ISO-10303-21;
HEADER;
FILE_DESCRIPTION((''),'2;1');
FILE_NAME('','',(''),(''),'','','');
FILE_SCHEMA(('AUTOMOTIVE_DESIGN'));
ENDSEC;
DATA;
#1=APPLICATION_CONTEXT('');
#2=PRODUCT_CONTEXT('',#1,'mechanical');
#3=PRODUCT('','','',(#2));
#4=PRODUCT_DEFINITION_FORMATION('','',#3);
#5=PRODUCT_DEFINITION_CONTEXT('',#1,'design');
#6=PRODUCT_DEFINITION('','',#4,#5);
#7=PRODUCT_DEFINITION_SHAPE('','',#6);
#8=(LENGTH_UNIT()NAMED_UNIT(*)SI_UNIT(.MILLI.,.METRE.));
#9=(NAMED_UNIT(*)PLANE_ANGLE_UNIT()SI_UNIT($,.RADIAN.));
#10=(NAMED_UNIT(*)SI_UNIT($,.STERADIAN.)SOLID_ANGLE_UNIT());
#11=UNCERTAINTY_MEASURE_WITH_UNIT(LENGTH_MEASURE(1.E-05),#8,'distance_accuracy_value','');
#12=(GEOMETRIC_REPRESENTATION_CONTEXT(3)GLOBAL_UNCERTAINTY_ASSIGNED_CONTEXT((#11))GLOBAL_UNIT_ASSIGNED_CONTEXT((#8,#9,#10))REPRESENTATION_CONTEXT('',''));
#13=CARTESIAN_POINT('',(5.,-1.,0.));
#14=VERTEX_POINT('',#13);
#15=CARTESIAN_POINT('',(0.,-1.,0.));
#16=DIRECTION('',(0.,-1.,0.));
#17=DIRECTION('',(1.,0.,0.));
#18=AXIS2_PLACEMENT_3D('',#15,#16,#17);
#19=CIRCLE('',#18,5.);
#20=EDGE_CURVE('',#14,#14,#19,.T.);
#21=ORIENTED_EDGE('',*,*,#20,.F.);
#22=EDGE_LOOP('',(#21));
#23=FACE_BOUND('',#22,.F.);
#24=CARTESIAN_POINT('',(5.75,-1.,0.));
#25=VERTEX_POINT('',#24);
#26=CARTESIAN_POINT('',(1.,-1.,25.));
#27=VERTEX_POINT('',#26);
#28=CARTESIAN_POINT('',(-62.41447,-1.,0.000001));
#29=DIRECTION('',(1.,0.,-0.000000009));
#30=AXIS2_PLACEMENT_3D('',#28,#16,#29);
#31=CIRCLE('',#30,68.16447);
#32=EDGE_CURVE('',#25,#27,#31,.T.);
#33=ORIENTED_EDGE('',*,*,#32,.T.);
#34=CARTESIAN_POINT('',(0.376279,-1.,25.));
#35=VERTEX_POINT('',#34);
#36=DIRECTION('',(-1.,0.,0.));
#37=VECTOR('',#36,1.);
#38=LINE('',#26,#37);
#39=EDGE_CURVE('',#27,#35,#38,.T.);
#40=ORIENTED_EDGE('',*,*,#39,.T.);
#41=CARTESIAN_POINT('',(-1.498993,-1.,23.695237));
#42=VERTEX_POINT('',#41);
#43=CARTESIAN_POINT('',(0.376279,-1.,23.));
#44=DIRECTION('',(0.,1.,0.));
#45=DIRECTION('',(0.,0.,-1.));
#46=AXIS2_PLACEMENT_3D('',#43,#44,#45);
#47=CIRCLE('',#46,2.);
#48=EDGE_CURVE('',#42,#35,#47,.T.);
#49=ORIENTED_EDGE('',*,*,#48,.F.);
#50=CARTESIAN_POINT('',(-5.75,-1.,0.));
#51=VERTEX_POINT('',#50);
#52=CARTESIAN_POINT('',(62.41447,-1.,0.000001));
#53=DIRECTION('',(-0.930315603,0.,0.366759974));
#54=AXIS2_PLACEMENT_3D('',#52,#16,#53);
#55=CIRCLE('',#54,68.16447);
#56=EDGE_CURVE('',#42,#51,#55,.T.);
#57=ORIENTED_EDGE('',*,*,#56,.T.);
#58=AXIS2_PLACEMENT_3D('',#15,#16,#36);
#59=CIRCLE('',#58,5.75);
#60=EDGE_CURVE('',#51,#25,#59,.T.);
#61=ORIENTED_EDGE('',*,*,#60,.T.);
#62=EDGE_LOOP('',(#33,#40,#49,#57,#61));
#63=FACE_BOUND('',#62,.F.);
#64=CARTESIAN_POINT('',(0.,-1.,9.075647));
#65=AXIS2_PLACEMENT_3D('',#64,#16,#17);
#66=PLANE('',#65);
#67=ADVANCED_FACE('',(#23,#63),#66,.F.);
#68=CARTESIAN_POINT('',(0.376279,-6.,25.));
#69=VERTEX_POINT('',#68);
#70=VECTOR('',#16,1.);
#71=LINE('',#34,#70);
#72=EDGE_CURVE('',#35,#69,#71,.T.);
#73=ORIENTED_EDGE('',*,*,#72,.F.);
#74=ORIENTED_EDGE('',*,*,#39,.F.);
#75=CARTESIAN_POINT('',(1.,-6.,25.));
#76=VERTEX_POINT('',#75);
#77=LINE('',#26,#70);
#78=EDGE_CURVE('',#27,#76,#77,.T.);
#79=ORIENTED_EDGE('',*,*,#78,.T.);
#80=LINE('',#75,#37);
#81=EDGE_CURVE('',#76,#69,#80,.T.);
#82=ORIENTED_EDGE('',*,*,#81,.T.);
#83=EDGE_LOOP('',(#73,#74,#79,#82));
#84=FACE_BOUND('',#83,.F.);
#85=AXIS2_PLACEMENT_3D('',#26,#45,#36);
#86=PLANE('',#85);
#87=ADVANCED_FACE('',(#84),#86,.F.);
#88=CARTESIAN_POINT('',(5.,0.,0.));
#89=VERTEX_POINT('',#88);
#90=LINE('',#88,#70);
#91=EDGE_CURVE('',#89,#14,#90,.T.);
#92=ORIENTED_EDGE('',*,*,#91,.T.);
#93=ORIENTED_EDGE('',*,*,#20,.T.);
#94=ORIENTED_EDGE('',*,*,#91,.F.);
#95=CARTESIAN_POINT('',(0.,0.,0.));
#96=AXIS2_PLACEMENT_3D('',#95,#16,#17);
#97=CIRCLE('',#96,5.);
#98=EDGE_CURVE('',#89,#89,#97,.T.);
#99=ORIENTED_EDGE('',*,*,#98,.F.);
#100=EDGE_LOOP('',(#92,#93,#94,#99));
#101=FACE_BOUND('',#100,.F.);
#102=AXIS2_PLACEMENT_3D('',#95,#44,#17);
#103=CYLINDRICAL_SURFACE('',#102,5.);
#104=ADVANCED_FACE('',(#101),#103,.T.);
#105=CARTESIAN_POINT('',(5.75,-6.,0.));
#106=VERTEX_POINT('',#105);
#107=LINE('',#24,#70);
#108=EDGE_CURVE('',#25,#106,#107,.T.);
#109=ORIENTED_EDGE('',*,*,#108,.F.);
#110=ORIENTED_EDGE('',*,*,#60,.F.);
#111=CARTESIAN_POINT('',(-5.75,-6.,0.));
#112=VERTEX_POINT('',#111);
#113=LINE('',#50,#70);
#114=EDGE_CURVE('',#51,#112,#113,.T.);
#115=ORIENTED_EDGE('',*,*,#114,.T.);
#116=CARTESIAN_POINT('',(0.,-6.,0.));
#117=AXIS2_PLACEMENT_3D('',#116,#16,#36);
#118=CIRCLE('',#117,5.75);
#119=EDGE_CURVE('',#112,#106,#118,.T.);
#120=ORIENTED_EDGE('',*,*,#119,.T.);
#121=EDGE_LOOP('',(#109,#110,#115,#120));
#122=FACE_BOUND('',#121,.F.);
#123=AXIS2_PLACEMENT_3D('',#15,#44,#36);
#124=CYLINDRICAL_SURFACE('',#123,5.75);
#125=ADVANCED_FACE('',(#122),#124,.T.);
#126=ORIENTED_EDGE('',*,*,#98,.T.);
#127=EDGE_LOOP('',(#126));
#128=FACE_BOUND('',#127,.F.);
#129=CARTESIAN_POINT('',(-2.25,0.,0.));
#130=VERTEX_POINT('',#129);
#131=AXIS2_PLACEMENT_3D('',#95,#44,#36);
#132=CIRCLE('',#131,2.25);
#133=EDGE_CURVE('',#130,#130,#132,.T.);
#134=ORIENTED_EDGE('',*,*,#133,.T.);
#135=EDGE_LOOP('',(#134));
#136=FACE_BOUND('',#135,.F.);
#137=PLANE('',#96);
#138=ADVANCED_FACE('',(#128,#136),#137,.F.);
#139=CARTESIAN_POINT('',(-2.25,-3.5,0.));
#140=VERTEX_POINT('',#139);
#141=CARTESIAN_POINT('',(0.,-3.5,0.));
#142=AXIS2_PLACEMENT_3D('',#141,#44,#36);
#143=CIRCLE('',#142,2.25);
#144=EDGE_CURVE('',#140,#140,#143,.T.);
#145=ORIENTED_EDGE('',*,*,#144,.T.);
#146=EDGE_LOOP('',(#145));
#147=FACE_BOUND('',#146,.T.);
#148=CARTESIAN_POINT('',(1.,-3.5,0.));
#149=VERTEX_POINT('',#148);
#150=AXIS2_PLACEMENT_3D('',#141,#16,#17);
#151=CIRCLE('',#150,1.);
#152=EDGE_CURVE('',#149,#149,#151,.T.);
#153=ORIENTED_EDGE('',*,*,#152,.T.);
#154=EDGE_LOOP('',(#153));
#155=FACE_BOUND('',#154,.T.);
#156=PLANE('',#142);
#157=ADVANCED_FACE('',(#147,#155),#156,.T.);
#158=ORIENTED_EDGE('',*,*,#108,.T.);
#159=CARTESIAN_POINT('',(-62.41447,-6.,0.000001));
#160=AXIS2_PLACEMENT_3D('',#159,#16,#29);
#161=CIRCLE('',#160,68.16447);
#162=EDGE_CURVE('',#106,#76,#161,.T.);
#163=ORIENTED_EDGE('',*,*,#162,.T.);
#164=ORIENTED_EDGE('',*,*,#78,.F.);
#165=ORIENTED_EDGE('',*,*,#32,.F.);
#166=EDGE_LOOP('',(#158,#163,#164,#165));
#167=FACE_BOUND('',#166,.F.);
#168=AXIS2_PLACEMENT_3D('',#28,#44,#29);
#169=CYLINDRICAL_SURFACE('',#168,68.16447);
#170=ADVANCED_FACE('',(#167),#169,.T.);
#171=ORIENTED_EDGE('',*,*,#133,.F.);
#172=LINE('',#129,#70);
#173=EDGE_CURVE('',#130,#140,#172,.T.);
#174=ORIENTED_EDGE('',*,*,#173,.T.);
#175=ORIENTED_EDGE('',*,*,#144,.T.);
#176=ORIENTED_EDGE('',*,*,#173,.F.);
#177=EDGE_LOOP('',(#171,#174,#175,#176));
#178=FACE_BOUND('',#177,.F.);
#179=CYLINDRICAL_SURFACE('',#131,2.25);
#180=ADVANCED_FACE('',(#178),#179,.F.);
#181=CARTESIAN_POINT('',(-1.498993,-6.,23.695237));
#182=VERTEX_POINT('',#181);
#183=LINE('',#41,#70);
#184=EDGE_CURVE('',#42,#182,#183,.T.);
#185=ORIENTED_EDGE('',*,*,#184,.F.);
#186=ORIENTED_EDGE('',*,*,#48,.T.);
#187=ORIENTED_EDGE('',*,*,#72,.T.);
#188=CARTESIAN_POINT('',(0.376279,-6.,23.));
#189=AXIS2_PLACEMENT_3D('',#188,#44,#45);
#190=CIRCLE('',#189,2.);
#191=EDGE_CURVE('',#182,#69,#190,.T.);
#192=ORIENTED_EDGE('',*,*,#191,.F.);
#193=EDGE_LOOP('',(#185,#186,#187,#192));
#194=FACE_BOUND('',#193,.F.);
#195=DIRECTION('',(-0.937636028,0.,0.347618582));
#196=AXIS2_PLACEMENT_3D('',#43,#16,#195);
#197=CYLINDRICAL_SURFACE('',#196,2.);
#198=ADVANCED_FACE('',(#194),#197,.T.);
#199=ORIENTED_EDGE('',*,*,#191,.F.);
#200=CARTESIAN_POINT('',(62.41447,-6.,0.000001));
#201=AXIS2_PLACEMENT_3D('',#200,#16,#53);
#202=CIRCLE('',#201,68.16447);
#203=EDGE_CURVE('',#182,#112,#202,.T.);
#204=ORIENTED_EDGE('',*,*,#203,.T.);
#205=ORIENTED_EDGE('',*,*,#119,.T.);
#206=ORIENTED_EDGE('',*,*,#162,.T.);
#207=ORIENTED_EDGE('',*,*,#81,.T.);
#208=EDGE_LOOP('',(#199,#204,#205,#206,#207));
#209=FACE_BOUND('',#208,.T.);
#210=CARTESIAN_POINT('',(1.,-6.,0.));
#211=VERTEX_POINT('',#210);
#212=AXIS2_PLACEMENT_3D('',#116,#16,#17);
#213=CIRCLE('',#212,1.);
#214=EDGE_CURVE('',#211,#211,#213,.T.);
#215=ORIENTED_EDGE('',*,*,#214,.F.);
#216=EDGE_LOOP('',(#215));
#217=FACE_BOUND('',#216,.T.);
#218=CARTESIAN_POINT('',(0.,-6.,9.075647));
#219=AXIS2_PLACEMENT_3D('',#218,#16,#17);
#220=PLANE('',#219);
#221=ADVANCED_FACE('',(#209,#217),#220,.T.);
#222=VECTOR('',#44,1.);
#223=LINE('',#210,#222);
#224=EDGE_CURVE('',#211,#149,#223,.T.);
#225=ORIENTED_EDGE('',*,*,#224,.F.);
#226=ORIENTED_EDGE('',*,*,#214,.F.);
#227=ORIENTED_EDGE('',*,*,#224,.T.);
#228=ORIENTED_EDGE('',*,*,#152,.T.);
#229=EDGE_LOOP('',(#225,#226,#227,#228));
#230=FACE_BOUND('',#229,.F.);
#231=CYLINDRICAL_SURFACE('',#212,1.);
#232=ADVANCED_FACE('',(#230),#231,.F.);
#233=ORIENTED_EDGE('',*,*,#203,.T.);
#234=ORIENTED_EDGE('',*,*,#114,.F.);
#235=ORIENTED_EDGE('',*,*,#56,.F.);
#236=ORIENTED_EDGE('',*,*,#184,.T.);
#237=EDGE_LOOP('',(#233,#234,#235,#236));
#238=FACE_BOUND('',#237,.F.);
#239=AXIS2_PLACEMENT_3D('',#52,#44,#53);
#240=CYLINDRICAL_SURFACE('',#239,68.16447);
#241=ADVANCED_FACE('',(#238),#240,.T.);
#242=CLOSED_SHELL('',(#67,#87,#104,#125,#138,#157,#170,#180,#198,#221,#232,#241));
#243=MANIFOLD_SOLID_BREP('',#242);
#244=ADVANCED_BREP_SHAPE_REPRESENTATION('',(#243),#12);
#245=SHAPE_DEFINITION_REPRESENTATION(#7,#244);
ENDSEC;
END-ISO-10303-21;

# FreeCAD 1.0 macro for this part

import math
import FreeCAD as App
import Part
import Sketcher

V = App.Vector


def edges_at(feature, points):
    """Names of the edges that pass closest to the given points."""
    edges = feature.Shape.Edges
    near = lambda p: min(range(len(edges)), key=lambda i: edges[i].distToShape(Part.Vertex(*p))[0])
    return sorted({f"Edge{near(p) + 1}" for p in points})

doc = App.newDocument("Part")
body = doc.addObject("PartDesign::Body", "Body")

# Sketch on XZ plane
sketch1 = body.newObject("Sketcher::SketchObject", "Sketch")
sketch1.AttachmentSupport = (doc.getObject("XZ_Plane"), [""])
sketch1.MapMode = "FlatFace"
sketch1.addGeometry(Part.Circle(V(0, 0, 0), V(0, 0, 1), 5), False)
sketch1.addConstraint(Sketcher.Constraint("Coincident", 0, 3, -1, 1))
sketch1.addConstraint(Sketcher.Constraint("Diameter", 0, 10.0))
pad1 = body.newObject("PartDesign::Pad", "Pad")
pad1.Profile = sketch1
pad1.Length = 1

# Sketch on XZ plane
sketch2 = body.newObject("Sketcher::SketchObject", "Sketch001")
sketch2.AttachmentSupport = (doc.getObject("XZ_Plane"), [""])
sketch2.MapMode = "FlatFace"
sketch2.AttachmentOffset = App.Placement(V(0, 0, 1), App.Rotation())
sketch2.addGeometry(Part.ArcOfCircle(Part.Circle(V(62.4, 0, 0), V(0, 0, 1), 68.2), math.radians(158), math.radians(180)), False)
sketch2.addGeometry(Part.ArcOfCircle(Part.Circle(V(0, 0, 0), V(0, 0, 1), 5.8), math.radians(180), math.radians(360)), False)
sketch2.addGeometry(Part.ArcOfCircle(Part.Circle(V(-62.4, 0, 0), V(0, 0, 1), 68.2), math.radians(0), math.radians(22)), False)
sketch2.addGeometry(Part.LineSegment(V(1, 25, 0), V(-1, 25, 0)), False)
sketch2.addConstraint(Sketcher.Constraint("Tangent", 0, 2, 1, 1))
sketch2.addConstraint(Sketcher.Constraint("Tangent", 1, 2, 2, 1))
sketch2.addConstraint(Sketcher.Constraint("Coincident", 2, 2, 3, 1))
sketch2.addConstraint(Sketcher.Constraint("Coincident", 3, 2, 0, 1))
sketch2.addConstraint(Sketcher.Constraint("Horizontal", 3))
sketch2.addConstraint(Sketcher.Constraint("Coincident", 1, 3, -1, 1))
sketch2.addConstraint(Sketcher.Constraint("Equal", 0, 2))
sketch2.addConstraint(Sketcher.Constraint("PointOnObject", 0, 3, -1))
sketch2.addConstraint(Sketcher.Constraint("PointOnObject", 2, 3, -1))
sketch2.addConstraint(Sketcher.Constraint("DistanceX", 3, 2, 3, 1, 2.0))
sketch2.addConstraint(Sketcher.Constraint("Radius", 1, 5.75))
sketch2.addConstraint(Sketcher.Constraint("DistanceY", -1, 1, 3, 2, 25.0))
pad2 = body.newObject("PartDesign::Pad", "Pad001")
pad2.Profile = sketch2
pad2.Length = 5

# Sketch on XZ plane
sketch3 = body.newObject("Sketcher::SketchObject", "Sketch002")
sketch3.AttachmentSupport = (doc.getObject("XZ_Plane"), [""])
sketch3.MapMode = "FlatFace"
sketch3.addGeometry(Part.Circle(V(0, 0, 0), V(0, 0, 1), 2.2), False)
sketch3.addConstraint(Sketcher.Constraint("Coincident", 0, 3, -1, 1))
sketch3.addConstraint(Sketcher.Constraint("Diameter", 0, 4.5))
pocket1 = body.newObject("PartDesign::Pocket", "Pocket")
pocket1.Profile = sketch3
pocket1.Length = 3.5
pocket1.Reversed = True

# Sketch on XZ plane
sketch4 = body.newObject("Sketcher::SketchObject", "Sketch003")
sketch4.AttachmentSupport = (doc.getObject("XZ_Plane"), [""])
sketch4.MapMode = "FlatFace"
sketch4.AttachmentOffset = App.Placement(V(0, 0, 6), App.Rotation())
sketch4.addGeometry(Part.Circle(V(0, 0, 0), V(0, 0, 1), 1), False)
sketch4.addConstraint(Sketcher.Constraint("Coincident", 0, 3, -1, 1))
sketch4.addConstraint(Sketcher.Constraint("Diameter", 0, 2.0))
pocket2 = body.newObject("PartDesign::Pocket", "Pocket001")
pocket2.Profile = sketch4
pocket2.Length = 25
doc.recompute()

fillet = body.newObject("PartDesign::Fillet", "Fillet")
fillet.Base = (pocket2, edges_at(pocket2, [(-1, -3.5, 25)]))
fillet.Radius = 2

doc.recompute()
